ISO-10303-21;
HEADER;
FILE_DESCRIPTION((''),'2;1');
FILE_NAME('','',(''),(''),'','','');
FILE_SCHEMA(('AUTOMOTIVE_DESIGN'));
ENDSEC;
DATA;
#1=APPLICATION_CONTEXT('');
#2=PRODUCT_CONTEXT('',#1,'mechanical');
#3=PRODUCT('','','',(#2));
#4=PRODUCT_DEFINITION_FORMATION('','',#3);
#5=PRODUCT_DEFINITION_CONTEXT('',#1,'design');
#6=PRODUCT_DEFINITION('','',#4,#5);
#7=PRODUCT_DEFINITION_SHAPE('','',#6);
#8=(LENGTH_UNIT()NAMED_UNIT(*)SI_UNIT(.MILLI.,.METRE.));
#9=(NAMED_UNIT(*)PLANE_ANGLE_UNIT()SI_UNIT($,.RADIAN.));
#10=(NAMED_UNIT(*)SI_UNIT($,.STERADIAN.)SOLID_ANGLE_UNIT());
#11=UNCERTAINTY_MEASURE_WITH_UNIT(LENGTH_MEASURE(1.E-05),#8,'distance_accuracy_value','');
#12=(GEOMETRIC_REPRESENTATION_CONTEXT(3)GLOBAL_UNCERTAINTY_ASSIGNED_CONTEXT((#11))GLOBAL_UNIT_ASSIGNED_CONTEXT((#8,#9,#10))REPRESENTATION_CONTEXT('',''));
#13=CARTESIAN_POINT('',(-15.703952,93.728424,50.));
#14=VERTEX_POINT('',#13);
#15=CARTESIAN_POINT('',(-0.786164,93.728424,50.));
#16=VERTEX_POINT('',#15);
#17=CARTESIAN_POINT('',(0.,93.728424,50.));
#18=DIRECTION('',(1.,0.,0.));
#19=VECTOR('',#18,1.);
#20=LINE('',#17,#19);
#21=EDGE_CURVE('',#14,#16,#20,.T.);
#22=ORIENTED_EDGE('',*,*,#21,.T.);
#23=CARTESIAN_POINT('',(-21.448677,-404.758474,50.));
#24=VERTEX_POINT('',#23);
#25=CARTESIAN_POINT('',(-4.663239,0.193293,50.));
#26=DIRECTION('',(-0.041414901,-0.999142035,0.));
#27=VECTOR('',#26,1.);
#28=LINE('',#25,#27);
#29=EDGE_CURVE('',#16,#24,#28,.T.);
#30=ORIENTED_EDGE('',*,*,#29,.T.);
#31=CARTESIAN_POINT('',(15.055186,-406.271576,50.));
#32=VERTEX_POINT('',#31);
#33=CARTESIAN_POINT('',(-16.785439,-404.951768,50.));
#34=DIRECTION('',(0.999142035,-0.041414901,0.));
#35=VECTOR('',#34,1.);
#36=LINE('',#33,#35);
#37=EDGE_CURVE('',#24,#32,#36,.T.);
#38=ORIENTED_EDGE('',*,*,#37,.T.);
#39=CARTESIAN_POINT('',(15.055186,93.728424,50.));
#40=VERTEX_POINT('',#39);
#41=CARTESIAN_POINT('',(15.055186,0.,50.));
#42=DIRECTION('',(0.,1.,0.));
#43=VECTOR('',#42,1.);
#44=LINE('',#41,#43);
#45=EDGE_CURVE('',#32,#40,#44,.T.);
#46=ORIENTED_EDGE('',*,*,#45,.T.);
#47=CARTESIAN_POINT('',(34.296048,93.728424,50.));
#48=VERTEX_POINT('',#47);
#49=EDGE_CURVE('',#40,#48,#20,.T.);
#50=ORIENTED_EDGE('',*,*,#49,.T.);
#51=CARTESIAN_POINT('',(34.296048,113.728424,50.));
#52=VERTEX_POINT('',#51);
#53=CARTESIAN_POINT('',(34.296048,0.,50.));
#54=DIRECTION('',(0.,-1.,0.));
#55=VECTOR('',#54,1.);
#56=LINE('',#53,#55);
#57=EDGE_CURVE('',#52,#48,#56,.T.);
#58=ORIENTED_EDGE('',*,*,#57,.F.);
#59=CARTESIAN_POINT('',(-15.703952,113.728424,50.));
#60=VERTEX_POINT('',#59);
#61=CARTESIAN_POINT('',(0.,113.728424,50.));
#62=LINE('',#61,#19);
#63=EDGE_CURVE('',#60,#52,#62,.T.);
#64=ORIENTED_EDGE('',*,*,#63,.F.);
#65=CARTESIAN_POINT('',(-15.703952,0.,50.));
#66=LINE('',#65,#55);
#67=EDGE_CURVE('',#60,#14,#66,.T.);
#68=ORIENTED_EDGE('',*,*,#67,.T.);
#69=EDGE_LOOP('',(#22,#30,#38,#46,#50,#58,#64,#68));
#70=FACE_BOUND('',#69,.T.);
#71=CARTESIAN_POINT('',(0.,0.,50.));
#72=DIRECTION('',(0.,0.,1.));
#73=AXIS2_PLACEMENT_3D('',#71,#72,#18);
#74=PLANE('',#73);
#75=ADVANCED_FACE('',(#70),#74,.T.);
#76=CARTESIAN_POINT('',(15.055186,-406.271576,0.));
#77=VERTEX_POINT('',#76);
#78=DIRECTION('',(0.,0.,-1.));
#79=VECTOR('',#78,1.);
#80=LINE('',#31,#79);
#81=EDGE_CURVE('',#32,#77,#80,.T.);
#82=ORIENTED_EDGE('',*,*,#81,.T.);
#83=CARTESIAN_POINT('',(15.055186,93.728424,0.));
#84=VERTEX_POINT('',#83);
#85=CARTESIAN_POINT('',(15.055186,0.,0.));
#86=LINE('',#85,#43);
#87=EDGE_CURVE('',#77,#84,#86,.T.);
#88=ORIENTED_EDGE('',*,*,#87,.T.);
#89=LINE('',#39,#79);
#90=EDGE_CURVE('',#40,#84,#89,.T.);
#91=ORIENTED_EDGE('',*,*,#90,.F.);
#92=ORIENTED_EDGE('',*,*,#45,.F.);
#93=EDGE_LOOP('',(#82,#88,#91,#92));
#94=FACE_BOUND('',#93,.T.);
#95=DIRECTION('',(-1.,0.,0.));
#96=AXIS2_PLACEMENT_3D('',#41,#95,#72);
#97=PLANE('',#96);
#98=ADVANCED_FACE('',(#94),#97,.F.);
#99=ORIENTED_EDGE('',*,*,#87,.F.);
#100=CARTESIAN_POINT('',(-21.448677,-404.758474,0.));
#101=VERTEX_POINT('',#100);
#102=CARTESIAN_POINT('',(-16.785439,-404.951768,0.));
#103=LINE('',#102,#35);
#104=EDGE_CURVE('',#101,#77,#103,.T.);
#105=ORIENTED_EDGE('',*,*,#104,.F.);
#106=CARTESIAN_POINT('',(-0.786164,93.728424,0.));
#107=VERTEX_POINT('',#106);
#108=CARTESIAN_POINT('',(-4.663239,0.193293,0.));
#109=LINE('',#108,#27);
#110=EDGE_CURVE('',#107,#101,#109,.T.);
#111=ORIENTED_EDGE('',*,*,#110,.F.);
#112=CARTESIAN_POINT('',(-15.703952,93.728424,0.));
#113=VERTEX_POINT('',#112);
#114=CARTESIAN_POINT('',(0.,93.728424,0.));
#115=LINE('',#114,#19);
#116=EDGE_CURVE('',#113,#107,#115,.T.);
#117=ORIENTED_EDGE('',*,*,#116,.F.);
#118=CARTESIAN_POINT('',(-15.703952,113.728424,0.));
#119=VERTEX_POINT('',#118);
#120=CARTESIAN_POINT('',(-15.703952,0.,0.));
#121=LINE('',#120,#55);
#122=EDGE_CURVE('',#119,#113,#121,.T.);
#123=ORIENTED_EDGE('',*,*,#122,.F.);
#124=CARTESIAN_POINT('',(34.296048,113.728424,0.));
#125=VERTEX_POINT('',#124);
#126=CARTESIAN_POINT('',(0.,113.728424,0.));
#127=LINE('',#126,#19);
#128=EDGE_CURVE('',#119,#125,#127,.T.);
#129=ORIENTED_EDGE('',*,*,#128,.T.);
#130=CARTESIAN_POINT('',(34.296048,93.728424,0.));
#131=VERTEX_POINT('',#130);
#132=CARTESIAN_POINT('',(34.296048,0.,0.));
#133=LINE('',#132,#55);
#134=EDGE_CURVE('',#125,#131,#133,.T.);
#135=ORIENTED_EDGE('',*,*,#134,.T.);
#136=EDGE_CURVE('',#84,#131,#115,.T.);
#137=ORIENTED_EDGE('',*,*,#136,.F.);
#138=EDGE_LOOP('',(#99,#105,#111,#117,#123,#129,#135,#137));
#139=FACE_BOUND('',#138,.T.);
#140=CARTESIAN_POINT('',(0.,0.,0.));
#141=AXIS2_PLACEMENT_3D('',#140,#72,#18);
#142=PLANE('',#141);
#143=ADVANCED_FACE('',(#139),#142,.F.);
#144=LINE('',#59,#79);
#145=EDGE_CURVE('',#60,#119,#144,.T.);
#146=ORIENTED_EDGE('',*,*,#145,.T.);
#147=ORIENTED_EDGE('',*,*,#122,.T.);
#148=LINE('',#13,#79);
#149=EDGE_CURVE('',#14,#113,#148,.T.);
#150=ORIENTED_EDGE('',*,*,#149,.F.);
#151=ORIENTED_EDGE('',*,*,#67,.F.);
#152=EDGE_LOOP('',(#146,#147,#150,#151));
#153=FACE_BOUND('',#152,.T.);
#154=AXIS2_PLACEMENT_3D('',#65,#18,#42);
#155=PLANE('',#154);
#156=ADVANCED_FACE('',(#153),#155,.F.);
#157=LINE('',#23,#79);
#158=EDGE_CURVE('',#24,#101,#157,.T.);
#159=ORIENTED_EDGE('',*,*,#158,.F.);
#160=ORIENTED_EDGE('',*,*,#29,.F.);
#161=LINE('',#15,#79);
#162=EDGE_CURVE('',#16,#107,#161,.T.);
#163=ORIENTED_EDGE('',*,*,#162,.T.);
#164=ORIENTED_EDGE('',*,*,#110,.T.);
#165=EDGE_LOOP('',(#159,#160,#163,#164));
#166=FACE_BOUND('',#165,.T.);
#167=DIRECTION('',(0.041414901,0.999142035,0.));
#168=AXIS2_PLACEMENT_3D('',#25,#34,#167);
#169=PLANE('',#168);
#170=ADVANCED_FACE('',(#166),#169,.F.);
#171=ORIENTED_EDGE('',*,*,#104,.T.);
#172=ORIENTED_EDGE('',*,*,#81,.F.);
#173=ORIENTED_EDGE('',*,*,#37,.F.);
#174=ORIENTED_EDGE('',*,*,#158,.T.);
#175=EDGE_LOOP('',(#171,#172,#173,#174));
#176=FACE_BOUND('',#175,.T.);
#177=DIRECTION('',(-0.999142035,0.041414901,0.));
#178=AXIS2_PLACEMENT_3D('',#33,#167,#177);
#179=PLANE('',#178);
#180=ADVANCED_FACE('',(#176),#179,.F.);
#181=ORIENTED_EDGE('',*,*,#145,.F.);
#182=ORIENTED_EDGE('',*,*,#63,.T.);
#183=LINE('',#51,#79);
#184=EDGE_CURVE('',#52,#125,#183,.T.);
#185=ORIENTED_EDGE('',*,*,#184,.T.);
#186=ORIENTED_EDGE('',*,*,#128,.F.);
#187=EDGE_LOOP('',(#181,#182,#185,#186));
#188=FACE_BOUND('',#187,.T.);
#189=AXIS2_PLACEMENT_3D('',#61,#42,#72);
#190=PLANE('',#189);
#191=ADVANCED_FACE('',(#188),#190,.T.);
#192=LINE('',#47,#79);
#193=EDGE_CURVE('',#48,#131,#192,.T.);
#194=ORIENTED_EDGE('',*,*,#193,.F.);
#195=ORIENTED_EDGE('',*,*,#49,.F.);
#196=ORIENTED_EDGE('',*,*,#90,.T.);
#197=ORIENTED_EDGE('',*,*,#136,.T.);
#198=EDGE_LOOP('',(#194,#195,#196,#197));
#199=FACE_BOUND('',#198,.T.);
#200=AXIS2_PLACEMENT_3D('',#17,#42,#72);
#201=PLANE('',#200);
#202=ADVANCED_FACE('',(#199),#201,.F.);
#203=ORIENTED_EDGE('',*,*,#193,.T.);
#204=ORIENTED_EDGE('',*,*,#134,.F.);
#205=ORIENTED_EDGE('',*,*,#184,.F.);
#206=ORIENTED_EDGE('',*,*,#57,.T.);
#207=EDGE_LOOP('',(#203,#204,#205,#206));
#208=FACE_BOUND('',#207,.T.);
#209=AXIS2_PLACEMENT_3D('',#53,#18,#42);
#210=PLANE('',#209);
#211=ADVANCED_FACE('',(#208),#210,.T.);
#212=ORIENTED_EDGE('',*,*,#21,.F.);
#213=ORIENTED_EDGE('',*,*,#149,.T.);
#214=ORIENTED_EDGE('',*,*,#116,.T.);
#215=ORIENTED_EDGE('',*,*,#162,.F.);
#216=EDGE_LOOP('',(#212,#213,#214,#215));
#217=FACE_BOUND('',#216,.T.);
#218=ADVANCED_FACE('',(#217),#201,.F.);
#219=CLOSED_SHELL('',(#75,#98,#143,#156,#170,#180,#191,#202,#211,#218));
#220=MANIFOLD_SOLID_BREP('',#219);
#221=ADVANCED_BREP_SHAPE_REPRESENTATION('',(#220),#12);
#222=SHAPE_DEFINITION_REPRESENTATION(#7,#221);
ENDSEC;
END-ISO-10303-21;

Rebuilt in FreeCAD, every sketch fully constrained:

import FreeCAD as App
import Part
import Sketcher
from FreeCAD import Vector

doc = App.newDocument("Part")
body = doc.addObject("PartDesign::Body", "Body")

sketch1 = doc.addObject("Sketcher::SketchObject", "Sketch")
body.addObject(sketch1)
sketch1.AttachmentSupport = (doc.XY_Plane, [""])
sketch1.MapMode = "FlatFace"
sketch1.addGeometry(Part.LineSegment(Vector(-1, 94, 0), Vector(-21, -405, 0)), False)
sketch1.addGeometry(Part.LineSegment(Vector(-21, -405, 0), Vector(15, -406, 0)), False)
sketch1.addGeometry(Part.LineSegment(Vector(15, -406, 0), Vector(15, 94, 0)), False)
sketch1.addGeometry(Part.LineSegment(Vector(15, 94, 0), Vector(34, 94, 0)), False)
sketch1.addGeometry(Part.LineSegment(Vector(34, 94, 0), Vector(34, 114, 0)), False)
sketch1.addGeometry(Part.LineSegment(Vector(34, 114, 0), Vector(-16, 114, 0)), False)
sketch1.addGeometry(Part.LineSegment(Vector(-16, 114, 0), Vector(-16, 94, 0)), False)
sketch1.addGeometry(Part.LineSegment(Vector(-16, 94, 0), Vector(-1, 94, 0)), False)
sketch1.addConstraint(Sketcher.Constraint("Coincident", 0, 2, 1, 1))
sketch1.addConstraint(Sketcher.Constraint("Coincident", 1, 2, 2, 1))
sketch1.addConstraint(Sketcher.Constraint("Coincident", 2, 2, 3, 1))
sketch1.addConstraint(Sketcher.Constraint("Coincident", 3, 2, 4, 1))
sketch1.addConstraint(Sketcher.Constraint("Coincident", 4, 2, 5, 1))
sketch1.addConstraint(Sketcher.Constraint("Coincident", 5, 2, 6, 1))
sketch1.addConstraint(Sketcher.Constraint("Coincident", 6, 2, 7, 1))
sketch1.addConstraint(Sketcher.Constraint("Coincident", 7, 2, 0, 1))
sketch1.addConstraint(Sketcher.Constraint("Vertical", 2))
sketch1.addConstraint(Sketcher.Constraint("Horizontal", 3))
sketch1.addConstraint(Sketcher.Constraint("Vertical", 4))
sketch1.addConstraint(Sketcher.Constraint("Horizontal", 5))
sketch1.addConstraint(Sketcher.Constraint("Vertical", 6))
sketch1.addConstraint(Sketcher.Constraint("Horizontal", 7))
sketch1.addConstraint(Sketcher.Constraint("Perpendicular", 0, 1))
sketch1.addConstraint(Sketcher.Constraint("Horizontal", 3, 2, 6, 2))
sketch1.addConstraint(Sketcher.Constraint("DistanceX", 5, 2, 5, 1, 50.0))
sketch1.addConstraint(Sketcher.Constraint("DistanceY", 2, 1, 2, 2, 500.0))
sketch1.addConstraint(Sketcher.Constraint("DistanceY", 4, 1, 4, 2, 20.0))
sketch1.addConstraint(Sketcher.Constraint("DistanceX", 3, 1, 3, 2, 19.240861))
sketch1.addConstraint(Sketcher.Constraint("Distance", 0, 498.91495))
sketch1.addConstraint(Sketcher.Constraint("Distance", 1, 36.53521))
sketch1.addConstraint(Sketcher.Constraint("DistanceX", 0, 2, -1, 1, 21.448677))
sketch1.addConstraint(Sketcher.Constraint("DistanceY", 0, 2, -1, 1, 404.758474))
pad1 = doc.addObject("PartDesign::Pad", "Pad")
body.addObject(pad1)
pad1.Profile = sketch1
pad1.Length = 50

doc.recompute()
